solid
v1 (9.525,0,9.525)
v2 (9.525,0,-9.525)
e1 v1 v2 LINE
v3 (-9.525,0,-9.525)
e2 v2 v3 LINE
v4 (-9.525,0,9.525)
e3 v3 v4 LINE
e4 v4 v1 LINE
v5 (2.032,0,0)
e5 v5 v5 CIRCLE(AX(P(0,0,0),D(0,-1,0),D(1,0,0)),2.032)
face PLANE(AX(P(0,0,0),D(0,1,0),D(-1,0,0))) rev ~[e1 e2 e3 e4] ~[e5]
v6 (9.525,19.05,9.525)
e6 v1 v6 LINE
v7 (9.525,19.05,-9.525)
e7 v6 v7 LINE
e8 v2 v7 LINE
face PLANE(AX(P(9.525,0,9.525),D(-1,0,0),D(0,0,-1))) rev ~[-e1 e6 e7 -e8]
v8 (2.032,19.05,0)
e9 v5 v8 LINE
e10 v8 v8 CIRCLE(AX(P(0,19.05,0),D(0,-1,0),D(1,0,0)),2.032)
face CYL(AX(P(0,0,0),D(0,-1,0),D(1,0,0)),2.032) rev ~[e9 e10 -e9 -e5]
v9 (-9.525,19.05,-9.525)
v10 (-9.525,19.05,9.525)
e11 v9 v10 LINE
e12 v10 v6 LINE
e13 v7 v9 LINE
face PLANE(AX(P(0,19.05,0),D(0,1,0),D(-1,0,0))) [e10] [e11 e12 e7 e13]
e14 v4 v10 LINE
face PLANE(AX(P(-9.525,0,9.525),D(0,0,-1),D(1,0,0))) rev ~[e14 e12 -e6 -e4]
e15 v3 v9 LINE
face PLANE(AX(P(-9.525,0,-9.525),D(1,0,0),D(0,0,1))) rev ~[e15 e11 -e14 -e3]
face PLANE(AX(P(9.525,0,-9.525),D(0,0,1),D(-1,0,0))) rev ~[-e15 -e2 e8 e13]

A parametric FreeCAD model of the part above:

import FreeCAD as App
import Part
import Sketcher
from FreeCAD import Vector
Q = App.Units.Quantity


def add_polygon(sketch, points):
    """Adds a closed chain of lines whose ends are joined by coincident constraints."""
    first, n = sketch.GeometryCount, len(points)
    for a, b in zip(points, points[1:] + points[:1]):
        sketch.addGeometry(Part.LineSegment(App.Vector(*a, 0), App.Vector(*b, 0)), False)
    for i in range(n):
        sketch.addConstraint(Sketcher.Constraint("Coincident", first + i, 2, first + (i + 1) % n, 1))

doc = App.newDocument("Part")
body = doc.addObject("PartDesign::Body", "Body")

# Sketch on XZ plane
sketch1 = body.newObject("Sketcher::SketchObject", "Sketch")
sketch1.AttachmentSupport = (doc.getObject("XZ_Plane"), [""])
sketch1.MapMode = "FlatFace"
add_polygon(sketch1, [(10, 10), (10, -10), (-10, -10), (-10, 10)])  # lines 0-3
sketch1.addConstraint([
    Sketcher.Constraint("Vertical", 0),
    Sketcher.Constraint("Horizontal", 1),
    Sketcher.Constraint("Vertical", 2),
    Sketcher.Constraint("Horizontal", 3),
    Sketcher.Constraint("Symmetric", 0, 2, 2, 2, -1, 1),
    Sketcher.Constraint("Equal", 3, 0),
    Sketcher.Constraint("DistanceX", 1, 2, 1, 1, Q("0.75 in")),
])
pad1 = body.newObject("PartDesign::Pad", "Pad")
pad1.Profile = sketch1
pad1.Length = Q("0.75 in")
pad1.Reversed = True

# Sketch on XZ plane
sketch2 = body.newObject("Sketcher::SketchObject", "Sketch001")
sketch2.AttachmentSupport = (doc.getObject("XZ_Plane"), [""])
sketch2.MapMode = "FlatFace"
sketch2.addGeometry(Part.Circle(Vector(0, 0, 0), Vector(0, 0, 1), 2), False)
sketch2.addConstraint([
    Sketcher.Constraint("Coincident", 0, 3, -1, 1),
    Sketcher.Constraint("Diameter", 0, Q("0.16 in")),
])
pocket1 = body.newObject("PartDesign::Pocket", "Pocket")
pocket1.Profile = sketch2
pocket1.Length = Q("1.5 in")

doc.recompute()
